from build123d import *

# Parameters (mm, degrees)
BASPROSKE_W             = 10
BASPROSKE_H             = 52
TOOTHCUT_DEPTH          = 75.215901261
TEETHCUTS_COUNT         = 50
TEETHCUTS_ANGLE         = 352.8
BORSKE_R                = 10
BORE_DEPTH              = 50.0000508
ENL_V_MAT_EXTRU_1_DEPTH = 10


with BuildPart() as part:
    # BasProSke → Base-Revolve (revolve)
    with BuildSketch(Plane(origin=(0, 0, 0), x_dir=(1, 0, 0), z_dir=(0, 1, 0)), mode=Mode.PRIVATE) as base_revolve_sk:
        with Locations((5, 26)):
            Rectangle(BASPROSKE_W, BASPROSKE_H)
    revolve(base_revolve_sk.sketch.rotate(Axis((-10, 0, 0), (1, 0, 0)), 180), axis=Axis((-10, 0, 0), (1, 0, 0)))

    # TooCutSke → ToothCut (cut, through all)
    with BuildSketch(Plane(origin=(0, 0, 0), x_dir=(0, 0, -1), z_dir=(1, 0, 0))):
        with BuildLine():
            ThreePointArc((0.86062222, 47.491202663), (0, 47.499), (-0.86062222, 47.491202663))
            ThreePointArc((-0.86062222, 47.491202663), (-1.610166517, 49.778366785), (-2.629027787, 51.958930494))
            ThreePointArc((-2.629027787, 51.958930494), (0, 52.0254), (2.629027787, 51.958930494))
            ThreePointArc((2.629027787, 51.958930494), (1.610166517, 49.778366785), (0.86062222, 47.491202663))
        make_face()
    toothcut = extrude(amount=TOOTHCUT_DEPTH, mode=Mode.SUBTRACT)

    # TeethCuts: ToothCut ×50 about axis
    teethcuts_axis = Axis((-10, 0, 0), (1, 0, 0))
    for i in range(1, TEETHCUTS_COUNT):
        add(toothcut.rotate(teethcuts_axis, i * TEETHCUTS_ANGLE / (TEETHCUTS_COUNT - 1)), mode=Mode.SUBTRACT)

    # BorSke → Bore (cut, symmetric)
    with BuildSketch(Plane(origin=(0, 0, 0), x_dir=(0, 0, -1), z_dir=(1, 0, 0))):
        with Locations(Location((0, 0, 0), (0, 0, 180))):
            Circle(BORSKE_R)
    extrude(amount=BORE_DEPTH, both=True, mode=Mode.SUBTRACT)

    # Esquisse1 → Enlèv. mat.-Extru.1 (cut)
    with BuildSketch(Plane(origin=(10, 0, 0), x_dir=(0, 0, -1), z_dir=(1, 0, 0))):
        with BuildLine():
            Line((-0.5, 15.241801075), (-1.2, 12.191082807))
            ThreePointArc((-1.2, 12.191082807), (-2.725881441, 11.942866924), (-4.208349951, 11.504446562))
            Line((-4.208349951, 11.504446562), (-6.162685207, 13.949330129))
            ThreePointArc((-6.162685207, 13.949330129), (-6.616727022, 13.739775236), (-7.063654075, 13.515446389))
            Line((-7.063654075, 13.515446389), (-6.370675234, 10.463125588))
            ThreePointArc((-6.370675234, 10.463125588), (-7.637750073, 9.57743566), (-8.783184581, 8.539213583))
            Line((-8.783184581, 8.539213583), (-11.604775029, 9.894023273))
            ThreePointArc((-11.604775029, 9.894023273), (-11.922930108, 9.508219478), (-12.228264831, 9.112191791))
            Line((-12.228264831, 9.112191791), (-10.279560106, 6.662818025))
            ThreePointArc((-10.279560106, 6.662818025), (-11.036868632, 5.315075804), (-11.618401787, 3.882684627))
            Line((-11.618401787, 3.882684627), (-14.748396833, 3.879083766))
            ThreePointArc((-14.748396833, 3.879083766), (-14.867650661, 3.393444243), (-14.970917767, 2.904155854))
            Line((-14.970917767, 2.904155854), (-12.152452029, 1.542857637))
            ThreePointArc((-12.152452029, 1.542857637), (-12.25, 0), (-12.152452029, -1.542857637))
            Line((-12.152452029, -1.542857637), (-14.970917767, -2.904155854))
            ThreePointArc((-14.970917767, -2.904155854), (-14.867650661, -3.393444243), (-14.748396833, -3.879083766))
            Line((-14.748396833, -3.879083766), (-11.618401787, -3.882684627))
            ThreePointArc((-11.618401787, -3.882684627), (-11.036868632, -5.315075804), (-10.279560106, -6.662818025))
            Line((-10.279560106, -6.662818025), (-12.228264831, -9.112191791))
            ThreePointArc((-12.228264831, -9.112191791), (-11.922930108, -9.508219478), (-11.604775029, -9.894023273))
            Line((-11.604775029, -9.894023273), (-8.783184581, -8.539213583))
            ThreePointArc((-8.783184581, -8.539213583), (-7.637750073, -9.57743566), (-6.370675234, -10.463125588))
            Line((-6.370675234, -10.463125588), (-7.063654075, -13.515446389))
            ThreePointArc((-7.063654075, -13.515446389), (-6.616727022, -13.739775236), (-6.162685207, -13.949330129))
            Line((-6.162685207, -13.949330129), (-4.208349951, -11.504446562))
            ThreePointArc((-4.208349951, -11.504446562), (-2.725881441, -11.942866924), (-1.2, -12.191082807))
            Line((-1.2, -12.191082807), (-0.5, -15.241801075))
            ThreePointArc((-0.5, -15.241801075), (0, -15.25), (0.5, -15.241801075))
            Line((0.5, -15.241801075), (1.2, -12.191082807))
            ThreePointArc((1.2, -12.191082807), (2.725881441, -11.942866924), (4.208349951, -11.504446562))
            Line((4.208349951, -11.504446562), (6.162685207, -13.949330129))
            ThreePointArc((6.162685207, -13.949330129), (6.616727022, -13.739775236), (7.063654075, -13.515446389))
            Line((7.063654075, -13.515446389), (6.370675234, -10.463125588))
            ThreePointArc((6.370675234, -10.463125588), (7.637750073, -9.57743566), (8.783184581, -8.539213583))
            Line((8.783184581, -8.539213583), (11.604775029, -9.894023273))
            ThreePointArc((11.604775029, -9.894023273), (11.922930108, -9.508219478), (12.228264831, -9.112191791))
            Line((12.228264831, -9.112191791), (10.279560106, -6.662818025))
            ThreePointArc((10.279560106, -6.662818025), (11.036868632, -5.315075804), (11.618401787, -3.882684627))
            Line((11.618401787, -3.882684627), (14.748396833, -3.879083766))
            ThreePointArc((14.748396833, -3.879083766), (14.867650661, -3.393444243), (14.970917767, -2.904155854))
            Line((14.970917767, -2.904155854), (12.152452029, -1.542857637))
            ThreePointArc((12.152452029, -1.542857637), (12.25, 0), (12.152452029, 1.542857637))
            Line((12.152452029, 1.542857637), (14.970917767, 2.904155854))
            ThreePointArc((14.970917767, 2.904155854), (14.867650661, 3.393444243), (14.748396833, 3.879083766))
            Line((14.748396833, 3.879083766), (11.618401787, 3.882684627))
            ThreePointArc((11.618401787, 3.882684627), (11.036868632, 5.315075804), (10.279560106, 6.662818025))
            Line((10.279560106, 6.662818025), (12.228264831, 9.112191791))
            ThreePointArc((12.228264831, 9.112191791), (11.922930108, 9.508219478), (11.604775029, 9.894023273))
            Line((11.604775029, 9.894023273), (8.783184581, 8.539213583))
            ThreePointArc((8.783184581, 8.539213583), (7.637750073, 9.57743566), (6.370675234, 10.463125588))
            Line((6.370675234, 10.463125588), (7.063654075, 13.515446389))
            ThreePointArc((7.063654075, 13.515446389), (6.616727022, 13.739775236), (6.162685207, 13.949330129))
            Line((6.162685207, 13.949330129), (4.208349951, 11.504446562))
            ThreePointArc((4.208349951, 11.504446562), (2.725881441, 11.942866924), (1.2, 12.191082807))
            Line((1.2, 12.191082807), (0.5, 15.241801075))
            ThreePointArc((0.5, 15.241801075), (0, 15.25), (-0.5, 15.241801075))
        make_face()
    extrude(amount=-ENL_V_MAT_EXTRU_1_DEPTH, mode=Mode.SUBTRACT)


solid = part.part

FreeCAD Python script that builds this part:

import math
import FreeCAD as App
import Part
import Sketcher

doc = App.newDocument("Part")
body = doc.addObject("PartDesign::Body", "Body")

sketch1 = doc.addObject("Sketcher::SketchObject", "Sketch")
body.addObject(sketch1)
sketch1.AttachmentSupport = (doc.XZ_Plane, [""])
sketch1.MapMode = "FlatFace"
sketch1.addGeometry(Part.LineSegment(App.Vector(0, -52, 0), App.Vector(0, 0, 0)), False)
sketch1.addGeometry(Part.LineSegment(App.Vector(0, 0, 0), App.Vector(10, 0, 0)), False)
sketch1.addGeometry(Part.LineSegment(App.Vector(10, 0, 0), App.Vector(10, -52, 0)), False)
sketch1.addGeometry(Part.LineSegment(App.Vector(10, -52, 0), App.Vector(0, -52, 0)), False)
sketch1.addConstraint(Sketcher.Constraint("Coincident", 0, 2, 1, 1))
sketch1.addConstraint(Sketcher.Constraint("Coincident", 1, 2, 2, 1))
sketch1.addConstraint(Sketcher.Constraint("Coincident", 2, 2, 3, 1))
sketch1.addConstraint(Sketcher.Constraint("Coincident", 3, 2, 0, 1))
sketch1.addConstraint(Sketcher.Constraint("Vertical", 0))
sketch1.addConstraint(Sketcher.Constraint("Horizontal", 1))
sketch1.addConstraint(Sketcher.Constraint("Vertical", 2))
sketch1.addConstraint(Sketcher.Constraint("Horizontal", 3))
sketch1.addConstraint(Sketcher.Constraint("Coincident", 0, 2, -1, 1))
sketch1.addConstraint(Sketcher.Constraint("DistanceX", 1, 1, 1, 2, 10.0))
sketch1.addConstraint(Sketcher.Constraint("DistanceY", 0, 1, 0, 2, 52.0))
revolution = doc.addObject("PartDesign::Revolution", "Revolution")
body.addObject(revolution)
revolution.Profile = sketch1
revolution.ReferenceAxis = (sketch1, ["H_Axis"])
revolution.Angle = 360

sketch2 = doc.addObject("Sketcher::SketchObject", "Sketch001")
body.addObject(sketch2)
sketch2.AttachmentSupport = (doc.YZ_Plane, [""])
sketch2.MapMode = "FlatFace"
sketch2.addGeometry(Part.ArcOfCircle(Part.Circle(App.Vector(0.000001, 0, 0), App.Vector(0, 0, 1), 47.498999), math.radians(-1.038184), math.radians(1.038184)), False)
sketch2.addGeometry(Part.ArcOfCircle(Part.Circle(App.Vector(42.41765, -20.206398, 0), App.Vector(0, 0, 1), 20), math.radians(61.506176), math.radians(75.304757)), False)
sketch2.addGeometry(Part.ArcOfCircle(Part.Circle(App.Vector(0, 0, 0), App.Vector(0, 0, 1), 52.0254), math.radians(-2.896592), math.radians(2.896592)), False)
sketch2.addGeometry(Part.ArcOfCircle(Part.Circle(App.Vector(42.41765, 20.206398, 0), App.Vector(0, 0, 1), 20), math.radians(-75.304757), math.radians(-61.506176)), False)
sketch2.addConstraint(Sketcher.Constraint("Coincident", 0, 1, 1, 2))
sketch2.addConstraint(Sketcher.Constraint("Coincident", 1, 1, 2, 1))
sketch2.addConstraint(Sketcher.Constraint("Coincident", 2, 2, 3, 2))
sketch2.addConstraint(Sketcher.Constraint("Coincident", 3, 1, 0, 2))
sketch2.addConstraint(Sketcher.Constraint("Coincident", 0, 3, -1, 1))
sketch2.addConstraint(Sketcher.Constraint("Coincident", 2, 3, -1, 1))
sketch2.addConstraint(Sketcher.Constraint("Radius", 1, 20.0))
sketch2.addConstraint(Sketcher.Constraint("Radius", 3, 20.0))
sketch2.addConstraint(Sketcher.Constraint("Radius", 0, 47.498999))
sketch2.addConstraint(Sketcher.Constraint("Radius", 2, 52.0254))
sketch2.addConstraint(Sketcher.Constraint("DistanceY", 1, 3, -1, 1, 20.206398))
sketch2.addConstraint(Sketcher.Constraint("DistanceY", -1, 1, 3, 3, 20.206398))
sketch2.addConstraint(Sketcher.Constraint("DistanceX", 0, 3, 0, 1, 47.491202))
sketch2.addConstraint(Sketcher.Constraint("DistanceX", -1, 1, 3, 3, 42.41765))
pocket1 = doc.addObject("PartDesign::Pocket", "Pocket")
body.addObject(pocket1)
pocket1.Profile = sketch2
pocket1.Type = "ThroughAll"
pocket1.Reversed = True
doc.recompute()

polarpattern = doc.addObject("PartDesign::PolarPattern", "PolarPattern")
body.addObject(polarpattern)
polarpattern.Originals = [pocket1]
polarpattern.Axis = (doc.X_Axis, [""])
polarpattern.Angle = 360
polarpattern.Occurrences = 50
body.Tip = polarpattern

sketch3 = doc.addObject("Sketcher::SketchObject", "Sketch002")
body.addObject(sketch3)
sketch3.AttachmentSupport = (doc.YZ_Plane, [""])
sketch3.MapMode = "FlatFace"
sketch3.addGeometry(Part.Circle(App.Vector(0, 0, 0), App.Vector(0, 0, 1), 10), False)
sketch3.addConstraint(Sketcher.Constraint("Coincident", 0, 3, -1, 1))
sketch3.addConstraint(Sketcher.Constraint("Diameter", 0, 20.0))
pocket2 = doc.addObject("PartDesign::Pocket", "Pocket001")
body.addObject(pocket2)
pocket2.Profile = sketch3
pocket2.Length = 100.000102
pocket2.Midplane = True

sketch4 = doc.addObject("Sketcher::SketchObject", "Sketch003")
body.addObject(sketch4)
sketch4.AttachmentSupport = (doc.YZ_Plane, [""])
sketch4.MapMode = "FlatFace"
sketch4.AttachmentOffset = App.Placement(App.Vector(0, 0, 10), App.Rotation())
sketch4.addGeometry(Part.LineSegment(App.Vector(15.2, 0.5, 0), App.Vector(12.2, 1.2, 0)), False)
sketch4.addGeometry(Part.ArcOfCircle(Part.Circle(App.Vector(0, 0, 0), App.Vector(0, 0, 1), 12.3), math.radians(5.62), math.radians(20.09)), False)
sketch4.addGeometry(Part.LineSegment(App.Vector(11.5, 4.2, 0), App.Vector(13.9, 6.2, 0)), False)
sketch4.addGeometry(Part.ArcOfCircle(Part.Circle(App.Vector(0, 0, 0), App.Vector(0, 0, 1), 15.2), math.radians(23.84), math.radians(27.59)), False)
sketch4.addGeometry(Part.LineSegment(App.Vector(13.5, 7.1, 0), App.Vector(10.5, 6.4, 0)), False)
sketch4.addGeometry(Part.ArcOfCircle(Part.Circle(App.Vector(0, 0, 0), App.Vector(0, 0, 1), 12.3), math.radians(31.34), math.radians(45.81)), False)
sketch4.addGeometry(Part.LineSegment(App.Vector(8.5, 8.8, 0), App.Vector(9.9, 11.6, 0)), False)
sketch4.addGeometry(Part.ArcOfCircle(Part.Circle(App.Vector(0, 0, 0), App.Vector(0, 0, 1), 15.3), math.radians(49.55), math.radians(53.31)), False)
sketch4.addGeometry(Part.LineSegment(App.Vector(9.1, 12.2, 0), App.Vector(6.7, 10.3, 0)), False)
sketch4.addGeometry(Part.ArcOfCircle(Part.Circle(App.Vector(0, 0, 0), App.Vector(0, 0, 1), 12.2), math.radians(57.05), math.radians(71.52)), False)
sketch4.addGeometry(Part.LineSegment(App.Vector(3.9, 11.6, 0), App.Vector(3.9, 14.7, 0)), False)
sketch4.addGeometry(Part.ArcOfCircle(Part.Circle(App.Vector(0, 0, 0), App.Vector(0, 0, 1), 15.3), math.radians(75.26), math.radians(79.02)), False)
sketch4.addGeometry(Part.LineSegment(App.Vector(2.9, 15, 0), App.Vector(1.5, 12.2, 0)), False)
sketch4.addGeometry(Part.ArcOfCircle(Part.Circle(App.Vector(0, 0, 0), App.Vector(0, 0, 1), 12.3), math.radians(82.76), math.radians(97.24)), False)
sketch4.addGeometry(Part.LineSegment(App.Vector(-1.5, 12.2, 0), App.Vector(-2.9, 15, 0)), False)
sketch4.addGeometry(Part.ArcOfCircle(Part.Circle(App.Vector(0, 0, 0), App.Vector(0, 0, 1), 15.3), math.radians(100.98), math.radians(104.74)), False)
sketch4.addGeometry(Part.LineSegment(App.Vector(-3.9, 14.7, 0), App.Vector(-3.9, 11.6, 0)), False)
sketch4.addGeometry(Part.ArcOfCircle(Part.Circle(App.Vector(0, 0, 0), App.Vector(0, 0, 1), 12.2), math.radians(108.48), math.radians(122.95)), False)
sketch4.addGeometry(Part.LineSegment(App.Vector(-6.7, 10.3, 0), App.Vector(-9.1, 12.2, 0)), False)
sketch4.addGeometry(Part.ArcOfCircle(Part.Circle(App.Vector(0, 0, 0), App.Vector(0, 0, 1), 15.3), math.radians(126.69), math.radians(130.45)), False)
sketch4.addGeometry(Part.LineSegment(App.Vector(-9.9, 11.6, 0), App.Vector(-8.5, 8.8, 0)), False)
sketch4.addGeometry(Part.ArcOfCircle(Part.Circle(App.Vector(0, 0, 0), App.Vector(0, 0, 1), 12.3), math.radians(134.19), math.radians(148.66)), False)
sketch4.addGeometry(Part.LineSegment(App.Vector(-10.5, 6.4, 0), App.Vector(-13.5, 7.1, 0)), False)
sketch4.addGeometry(Part.ArcOfCircle(Part.Circle(App.Vector(0, 0, 0), App.Vector(0, 0, 1), 15.2), math.radians(152.41), math.radians(156.16)), False)
sketch4.addGeometry(Part.LineSegment(App.Vector(-13.9, 6.2, 0), App.Vector(-11.5, 4.2, 0)), False)
sketch4.addGeometry(Part.ArcOfCircle(Part.Circle(App.Vector(0, 0, 0), App.Vector(0, 0, 1), 12.3), math.radians(159.91), math.radians(174.38)), False)
sketch4.addGeometry(Part.LineSegment(App.Vector(-12.2, 1.2, 0), App.Vector(-15.2, 0.5, 0)), False)
sketch4.addGeometry(Part.ArcOfCircle(Part.Circle(App.Vector(0, 0, 0), App.Vector(0, 0, 1), 15.3), math.radians(178.12), math.radians(181.88)), False)
sketch4.addGeometry(Part.LineSegment(App.Vector(-15.2, -0.5, 0), App.Vector(-12.2, -1.2, 0)), False)
sketch4.addGeometry(Part.ArcOfCircle(Part.Circle(App.Vector(0, 0, 0), App.Vector(0, 0, 1), 12.3), math.radians(-174.38), math.radians(-159.91)), False)
sketch4.addGeometry(Part.LineSegment(App.Vector(-11.5, -4.2, 0), App.Vector(-13.9, -6.2, 0)), False)
sketch4.addGeometry(Part.ArcOfCircle(Part.Circle(App.Vector(0, 0, 0), App.Vector(0, 0, 1), 15.2), math.radians(-156.16), math.radians(-152.41)), False)
sketch4.addGeometry(Part.LineSegment(App.Vector(-13.5, -7.1, 0), App.Vector(-10.5, -6.4, 0)), False)
sketch4.addGeometry(Part.ArcOfCircle(Part.Circle(App.Vector(0, 0, 0), App.Vector(0, 0, 1), 12.3), math.radians(-148.66), math.radians(-134.19)), False)
sketch4.addGeometry(Part.LineSegment(App.Vector(-8.5, -8.8, 0), App.Vector(-9.9, -11.6, 0)), False)
sketch4.addGeometry(Part.ArcOfCircle(Part.Circle(App.Vector(0, 0, 0), App.Vector(0, 0, 1), 15.3), math.radians(-130.45), math.radians(-126.69)), False)
sketch4.addGeometry(Part.LineSegment(App.Vector(-9.1, -12.2, 0), App.Vector(-6.7, -10.3, 0)), False)
sketch4.addGeometry(Part.ArcOfCircle(Part.Circle(App.Vector(0, 0, 0), App.Vector(0, 0, 1), 12.2), math.radians(-122.95), math.radians(-108.48)), False)
sketch4.addGeometry(Part.LineSegment(App.Vector(-3.9, -11.6, 0), App.Vector(-3.9, -14.7, 0)), False)
sketch4.addGeometry(Part.ArcOfCircle(Part.Circle(App.Vector(0, 0, 0), App.Vector(0, 0, 1), 15.3), math.radians(-104.74), math.radians(-100.98)), False)
sketch4.addGeometry(Part.LineSegment(App.Vector(-2.9, -15, 0), App.Vector(-1.5, -12.2, 0)), False)
sketch4.addGeometry(Part.ArcOfCircle(Part.Circle(App.Vector(0, 0, 0), App.Vector(0, 0, 1), 12.3), math.radians(-97.24), math.radians(-82.76)), False)
sketch4.addGeometry(Part.LineSegment(App.Vector(1.5, -12.2, 0), App.Vector(2.9, -15, 0)), False)
sketch4.addGeometry(Part.ArcOfCircle(Part.Circle(App.Vector(0, 0, 0), App.Vector(0, 0, 1), 15.3), math.radians(-79.02), math.radians(-75.26)), False)
sketch4.addGeometry(Part.LineSegment(App.Vector(3.9, -14.7, 0), App.Vector(3.9, -11.6, 0)), False)
sketch4.addGeometry(Part.ArcOfCircle(Part.Circle(App.Vector(0, 0, 0), App.Vector(0, 0, 1), 12.2), math.radians(-71.52), math.radians(-57.05)), False)
sketch4.addGeometry(Part.LineSegment(App.Vector(6.7, -10.3, 0), App.Vector(9.1, -12.2, 0)), False)
sketch4.addGeometry(Part.ArcOfCircle(Part.Circle(App.Vector(0, 0, 0), App.Vector(0, 0, 1), 15.3), math.radians(-53.31), math.radians(-49.55)), False)
sketch4.addGeometry(Part.LineSegment(App.Vector(9.9, -11.6, 0), App.Vector(8.5, -8.8, 0)), False)
sketch4.addGeometry(Part.ArcOfCircle(Part.Circle(App.Vector(0, 0, 0), App.Vector(0, 0, 1), 12.3), math.radians(-45.81), math.radians(-31.34)), False)
sketch4.addGeometry(Part.LineSegment(App.Vector(10.5, -6.4, 0), App.Vector(13.5, -7.1, 0)), False)
sketch4.addGeometry(Part.ArcOfCircle(Part.Circle(App.Vector(0, 0, 0), App.Vector(0, 0, 1), 15.2), math.radians(-27.59), math.radians(-23.84)), False)
sketch4.addGeometry(Part.LineSegment(App.Vector(13.9, -6.2, 0), App.Vector(11.5, -4.2, 0)), False)
sketch4.addGeometry(Part.ArcOfCircle(Part.Circle(App.Vector(0, 0, 0), App.Vector(0, 0, 1), 12.3), math.radians(-20.09), math.radians(-5.62)), False)
sketch4.addGeometry(Part.LineSegment(App.Vector(12.2, -1.2, 0), App.Vector(15.2, -0.5, 0)), False)
sketch4.addGeometry(Part.ArcOfCircle(Part.Circle(App.Vector(0, 0, 0), App.Vector(0, 0, 1), 15.3), math.radians(-1.88), math.radians(1.88)), False)
sketch4.addConstraint(Sketcher.Constraint("Coincident", 0, 2, 1, 1))
sketch4.addConstraint(Sketcher.Constraint("Coincident", 1, 2, 2, 1))
sketch4.addConstraint(Sketcher.Constraint("Coincident", 2, 2, 3, 1))
sketch4.addConstraint(Sketcher.Constraint("Coincident", 3, 2, 4, 1))
sketch4.addConstraint(Sketcher.Constraint("Coincident", 4, 2, 5, 1))
sketch4.addConstraint(Sketcher.Constraint("Coincident", 5, 2, 6, 1))
sketch4.addConstraint(Sketcher.Constraint("Coincident", 6, 2, 7, 1))
sketch4.addConstraint(Sketcher.Constraint("Coincident", 7, 2, 8, 1))
sketch4.addConstraint(Sketcher.Constraint("Coincident", 8, 2, 9, 1))
sketch4.addConstraint(Sketcher.Constraint("Coincident", 9, 2, 10, 1))
sketch4.addConstraint(Sketcher.Constraint("Coincident", 10, 2, 11, 1))
sketch4.addConstraint(Sketcher.Constraint("Coincident", 11, 2, 12, 1))
sketch4.addConstraint(Sketcher.Constraint("Coincident", 12, 2, 13, 1))
sketch4.addConstraint(Sketcher.Constraint("Coincident", 13, 2, 14, 1))
sketch4.addConstraint(Sketcher.Constraint("Coincident", 14, 2, 15, 1))
sketch4.addConstraint(Sketcher.Constraint("Coincident", 15, 2, 16, 1))
sketch4.addConstraint(Sketcher.Constraint("Coincident", 16, 2, 17, 1))
sketch4.addConstraint(Sketcher.Constraint("Coincident", 17, 2, 18, 1))
sketch4.addConstraint(Sketcher.Constraint("Coincident", 18, 2, 19, 1))
sketch4.addConstraint(Sketcher.Constraint("Coincident", 19, 2, 20, 1))
sketch4.addConstraint(Sketcher.Constraint("Coincident", 20, 2, 21, 1))
sketch4.addConstraint(Sketcher.Constraint("Coincident", 21, 2, 22, 1))
sketch4.addConstraint(Sketcher.Constraint("Coincident", 22, 2, 23, 1))
sketch4.addConstraint(Sketcher.Constraint("Coincident", 23, 2, 24, 1))
sketch4.addConstraint(Sketcher.Constraint("Coincident", 24, 2, 25, 1))
sketch4.addConstraint(Sketcher.Constraint("Coincident", 25, 2, 26, 1))
sketch4.addConstraint(Sketcher.Constraint("Coincident", 26, 2, 27, 1))
sketch4.addConstraint(Sketcher.Constraint("Coincident", 27, 2, 28, 1))
sketch4.addConstraint(Sketcher.Constraint("Coincident", 28, 2, 29, 1))
sketch4.addConstraint(Sketcher.Constraint("Coincident", 29, 2, 30, 1))
sketch4.addConstraint(Sketcher.Constraint("Coincident", 30, 2, 31, 1))
sketch4.addConstraint(Sketcher.Constraint("Coincident", 31, 2, 32, 1))
sketch4.addConstraint(Sketcher.Constraint("Coincident", 32, 2, 33, 1))
sketch4.addConstraint(Sketcher.Constraint("Coincident", 33, 2, 34, 1))
sketch4.addConstraint(Sketcher.Constraint("Coincident", 34, 2, 35, 1))
sketch4.addConstraint(Sketcher.Constraint("Coincident", 35, 2, 36, 1))
sketch4.addConstraint(Sketcher.Constraint("Coincident", 36, 2, 37, 1))
sketch4.addConstraint(Sketcher.Constraint("Coincident", 37, 2, 38, 1))
sketch4.addConstraint(Sketcher.Constraint("Coincident", 38, 2, 39, 1))
sketch4.addConstraint(Sketcher.Constraint("Coincident", 39, 2, 40, 1))
sketch4.addConstraint(Sketcher.Constraint("Coincident", 40, 2, 41, 1))
sketch4.addConstraint(Sketcher.Constraint("Coincident", 41, 2, 42, 1))
sketch4.addConstraint(Sketcher.Constraint("Coincident", 42, 2, 43, 1))
sketch4.addConstraint(Sketcher.Constraint("Coincident", 43, 2, 44, 1))
sketch4.addConstraint(Sketcher.Constraint("Coincident", 44, 2, 45, 1))
sketch4.addConstraint(Sketcher.Constraint("Coincident", 45, 2, 46, 1))
sketch4.addConstraint(Sketcher.Constraint("Coincident", 46, 2, 47, 1))
sketch4.addConstraint(Sketcher.Constraint("Coincident", 47, 2, 48, 1))
sketch4.addConstraint(Sketcher.Constraint("Coincident", 48, 2, 49, 1))
sketch4.addConstraint(Sketcher.Constraint("Coincident", 49, 2, 50, 1))
sketch4.addConstraint(Sketcher.Constraint("Coincident", 50, 2, 51, 1))
sketch4.addConstraint(Sketcher.Constraint("Coincident", 51, 2, 52, 1))
sketch4.addConstraint(Sketcher.Constraint("Coincident", 52, 2, 53, 1))
sketch4.addConstraint(Sketcher.Constraint("Coincident", 53, 2, 54, 1))
sketch4.addConstraint(Sketcher.Constraint("Coincident", 54, 2, 55, 1))
sketch4.addConstraint(Sketcher.Constraint("Coincident", 55, 2, 0, 1))
sketch4.addConstraint(Sketcher.Constraint("Coincident", 1, 3, -1, 1))
sketch4.addConstraint(Sketcher.Constraint("Coincident", 3, 3, -1, 1))
sketch4.addConstraint(Sketcher.Constraint("Coincident", 5, 3, -1, 1))
sketch4.addConstraint(Sketcher.Constraint("Coincident", 7, 3, -1, 1))
sketch4.addConstraint(Sketcher.Constraint("Coincident", 9, 3, -1, 1))
sketch4.addConstraint(Sketcher.Constraint("Coincident", 11, 3, -1, 1))
sketch4.addConstraint(Sketcher.Constraint("Coincident", 13, 3, -1, 1))
sketch4.addConstraint(Sketcher.Constraint("Coincident", 15, 3, -1, 1))
sketch4.addConstraint(Sketcher.Constraint("Coincident", 17, 3, -1, 1))
sketch4.addConstraint(Sketcher.Constraint("Coincident", 19, 3, -1, 1))
sketch4.addConstraint(Sketcher.Constraint("Coincident", 21, 3, -1, 1))
sketch4.addConstraint(Sketcher.Constraint("Coincident", 23, 3, -1, 1))
sketch4.addConstraint(Sketcher.Constraint("Coincident", 25, 3, -1, 1))
sketch4.addConstraint(Sketcher.Constraint("Coincident", 27, 3, -1, 1))
sketch4.addConstraint(Sketcher.Constraint("Coincident", 29, 3, -1, 1))
sketch4.addConstraint(Sketcher.Constraint("Coincident", 31, 3, -1, 1))
sketch4.addConstraint(Sketcher.Constraint("Coincident", 33, 3, -1, 1))
sketch4.addConstraint(Sketcher.Constraint("Coincident", 35, 3, -1, 1))
sketch4.addConstraint(Sketcher.Constraint("Coincident", 37, 3, -1, 1))
sketch4.addConstraint(Sketcher.Constraint("Coincident", 39, 3, -1, 1))
sketch4.addConstraint(Sketcher.Constraint("Coincident", 41, 3, -1, 1))
sketch4.addConstraint(Sketcher.Constraint("Coincident", 43, 3, -1, 1))
sketch4.addConstraint(Sketcher.Constraint("Coincident", 45, 3, -1, 1))
sketch4.addConstraint(Sketcher.Constraint("Coincident", 47, 3, -1, 1))
sketch4.addConstraint(Sketcher.Constraint("Coincident", 49, 3, -1, 1))
sketch4.addConstraint(Sketcher.Constraint("Coincident", 51, 3, -1, 1))
sketch4.addConstraint(Sketcher.Constraint("Coincident", 53, 3, -1, 1))
sketch4.addConstraint(Sketcher.Constraint("Coincident", 55, 3, -1, 1))
sketch4.addConstraint(Sketcher.Constraint("Equal", 1, 5))
sketch4.addConstraint(Sketcher.Constraint("Equal", 3, 7))
sketch4.addConstraint(Sketcher.Constraint("Equal", 5, 9))
sketch4.addConstraint(Sketcher.Constraint("Equal", 7, 11))
sketch4.addConstraint(Sketcher.Constraint("Equal", 9, 13))
sketch4.addConstraint(Sketcher.Constraint("Equal", 11, 15))
sketch4.addConstraint(Sketcher.Constraint("Equal", 13, 17))
sketch4.addConstraint(Sketcher.Constraint("Equal", 15, 19))
sketch4.addConstraint(Sketcher.Constraint("Equal", 17, 21))
sketch4.addConstraint(Sketcher.Constraint("Equal", 19, 23))
sketch4.addConstraint(Sketcher.Constraint("Equal", 21, 25))
sketch4.addConstraint(Sketcher.Constraint("Equal", 23, 27))
sketch4.addConstraint(Sketcher.Constraint("Equal", 25, 29))
sketch4.addConstraint(Sketcher.Constraint("Equal", 27, 31))
sketch4.addConstraint(Sketcher.Constraint("Equal", 29, 33))
sketch4.addConstraint(Sketcher.Constraint("Equal", 31, 35))
sketch4.addConstraint(Sketcher.Constraint("Equal", 33, 37))
sketch4.addConstraint(Sketcher.Constraint("Equal", 35, 39))
sketch4.addConstraint(Sketcher.Constraint("Equal", 37, 41))
sketch4.addConstraint(Sketcher.Constraint("Equal", 39, 43))
sketch4.addConstraint(Sketcher.Constraint("Equal", 41, 45))
sketch4.addConstraint(Sketcher.Constraint("Equal", 43, 47))
sketch4.addConstraint(Sketcher.Constraint("Equal", 45, 49))
sketch4.addConstraint(Sketcher.Constraint("Equal", 47, 51))
sketch4.addConstraint(Sketcher.Constraint("Equal", 49, 53))
sketch4.addConstraint(Sketcher.Constraint("Equal", 51, 55))
sketch4.addConstraint(Sketcher.Constraint("Parallel", 0, 28))
sketch4.addConstraint(Sketcher.Constraint("Parallel", 2, 30))
sketch4.addConstraint(Sketcher.Constraint("Parallel", 4, 32))
sketch4.addConstraint(Sketcher.Constraint("Parallel", 6, 34))
sketch4.addConstraint(Sketcher.Constraint("Parallel", 8, 36))
sketch4.addConstraint(Sketcher.Constraint("Parallel", 10, 38))
sketch4.addConstraint(Sketcher.Constraint("Parallel", 12, 40))
sketch4.addConstraint(Sketcher.Constraint("Parallel", 14, 42))
sketch4.addConstraint(Sketcher.Constraint("Parallel", 16, 44))
sketch4.addConstraint(Sketcher.Constraint("Parallel", 18, 46))
sketch4.addConstraint(Sketcher.Constraint("Parallel", 20, 48))
sketch4.addConstraint(Sketcher.Constraint("Parallel", 22, 50))
sketch4.addConstraint(Sketcher.Constraint("Parallel", 24, 52))
sketch4.addConstraint(Sketcher.Constraint("Parallel", 26, 54))
sketch4.addConstraint(Sketcher.Constraint("Horizontal", 12, 2, 13, 2))
sketch4.addConstraint(Sketcher.Constraint("Horizontal", 11, 2, 14, 2))
sketch4.addConstraint(Sketcher.Constraint("Horizontal", 10, 2, 15, 2))
sketch4.addConstraint(Sketcher.Constraint("Horizontal", 9, 2, 16, 2))
sketch4.addConstraint(Sketcher.Constraint("Horizontal", 8, 2, 17, 2))
sketch4.addConstraint(Sketcher.Constraint("Horizontal", 7, 2, 18, 2))
sketch4.addConstraint(Sketcher.Constraint("Horizontal", 6, 2, 19, 2))
sketch4.addConstraint(Sketcher.Constraint("Horizontal", 5, 2, 20, 2))
sketch4.addConstraint(Sketcher.Constraint("Horizontal", 4, 2, 21, 2))
sketch4.addConstraint(Sketcher.Constraint("Horizontal", 3, 2, 22, 2))
sketch4.addConstraint(Sketcher.Constraint("Horizontal", 2, 2, 23, 2))
sketch4.addConstraint(Sketcher.Constraint("Horizontal", 1, 2, 24, 2))
sketch4.addConstraint(Sketcher.Constraint("Horizontal", 0, 2, 25, 2))
sketch4.addConstraint(Sketcher.Constraint("Horizontal", 40, 2, 41, 2))
sketch4.addConstraint(Sketcher.Constraint("Horizontal", 38, 2, 43, 2))
sketch4.addConstraint(Sketcher.Constraint("Horizontal", 36, 2, 45, 2))
sketch4.addConstraint(Sketcher.Constraint("Horizontal", 34, 2, 47, 2))
sketch4.addConstraint(Sketcher.Constraint("Horizontal", 32, 2, 49, 2))
sketch4.addConstraint(Sketcher.Constraint("Horizontal", 30, 2, 51, 2))
sketch4.addConstraint(Sketcher.Constraint("Horizontal", 28, 2, 53, 2))
sketch4.addConstraint(Sketcher.Constraint("Horizontal", 27, 2, 54, 2))
sketch4.addConstraint(Sketcher.Constraint("Vertical", 26, 2, 27, 2))
sketch4.addConstraint(Sketcher.Constraint("Vertical", 24, 2, 29, 2))
sketch4.addConstraint(Sketcher.Constraint("Vertical", 22, 2, 31, 2))
sketch4.addConstraint(Sketcher.Constraint("Vertical", 20, 2, 33, 2))
sketch4.addConstraint(Sketcher.Constraint("Vertical", 18, 2, 35, 2))
sketch4.addConstraint(Sketcher.Constraint("Vertical", 16, 2, 37, 2))
sketch4.addConstraint(Sketcher.Constraint("Vertical", 14, 2, 39, 2))
sketch4.addConstraint(Sketcher.Constraint("Equal", 0, 2))
sketch4.addConstraint(Sketcher.Constraint("Equal", 2, 4))
sketch4.addConstraint(Sketcher.Constraint("Equal", 4, 6))
sketch4.addConstraint(Sketcher.Constraint("Equal", 6, 8))
sketch4.addConstraint(Sketcher.Constraint("Equal", 8, 10))
sketch4.addConstraint(Sketcher.Constraint("Equal", 10, 12))
sketch4.addConstraint(Sketcher.Constraint("Radius", 1, 12.25))
sketch4.addConstraint(Sketcher.Constraint("Radius", 3, 15.249999))
sketch4.addConstraint(Sketcher.Constraint("DistanceY", -1, 1, 0, 2, 1.2))
sketch4.addConstraint(Sketcher.Constraint("DistanceY", -1, 1, 26, 2, 0.5))
sketch4.addConstraint(Sketcher.Constraint("DistanceY", -1, 1, 9, 2, 11.618402))
sketch4.addConstraint(Sketcher.Constraint("DistanceY", -1, 1, 1, 2, 4.20835))
sketch4.addConstraint(Sketcher.Constraint("DistanceX", -1, 1, 7, 2, 9.112192))
sketch4.addConstraint(Sketcher.Constraint("DistanceX", -1, 1, 3, 2, 13.515446))
sketch4.addConstraint(Sketcher.Constraint("DistanceX", -1, 1, 5, 2, 8.539214))
sketch4.addConstraint(Sketcher.Constraint("DistanceX", -1, 1, 11, 2, 2.904156))
pocket3 = doc.addObject("PartDesign::Pocket", "Pocket002")
body.addObject(pocket3)
pocket3.Profile = sketch4
pocket3.Length = 10

doc.recompute()
